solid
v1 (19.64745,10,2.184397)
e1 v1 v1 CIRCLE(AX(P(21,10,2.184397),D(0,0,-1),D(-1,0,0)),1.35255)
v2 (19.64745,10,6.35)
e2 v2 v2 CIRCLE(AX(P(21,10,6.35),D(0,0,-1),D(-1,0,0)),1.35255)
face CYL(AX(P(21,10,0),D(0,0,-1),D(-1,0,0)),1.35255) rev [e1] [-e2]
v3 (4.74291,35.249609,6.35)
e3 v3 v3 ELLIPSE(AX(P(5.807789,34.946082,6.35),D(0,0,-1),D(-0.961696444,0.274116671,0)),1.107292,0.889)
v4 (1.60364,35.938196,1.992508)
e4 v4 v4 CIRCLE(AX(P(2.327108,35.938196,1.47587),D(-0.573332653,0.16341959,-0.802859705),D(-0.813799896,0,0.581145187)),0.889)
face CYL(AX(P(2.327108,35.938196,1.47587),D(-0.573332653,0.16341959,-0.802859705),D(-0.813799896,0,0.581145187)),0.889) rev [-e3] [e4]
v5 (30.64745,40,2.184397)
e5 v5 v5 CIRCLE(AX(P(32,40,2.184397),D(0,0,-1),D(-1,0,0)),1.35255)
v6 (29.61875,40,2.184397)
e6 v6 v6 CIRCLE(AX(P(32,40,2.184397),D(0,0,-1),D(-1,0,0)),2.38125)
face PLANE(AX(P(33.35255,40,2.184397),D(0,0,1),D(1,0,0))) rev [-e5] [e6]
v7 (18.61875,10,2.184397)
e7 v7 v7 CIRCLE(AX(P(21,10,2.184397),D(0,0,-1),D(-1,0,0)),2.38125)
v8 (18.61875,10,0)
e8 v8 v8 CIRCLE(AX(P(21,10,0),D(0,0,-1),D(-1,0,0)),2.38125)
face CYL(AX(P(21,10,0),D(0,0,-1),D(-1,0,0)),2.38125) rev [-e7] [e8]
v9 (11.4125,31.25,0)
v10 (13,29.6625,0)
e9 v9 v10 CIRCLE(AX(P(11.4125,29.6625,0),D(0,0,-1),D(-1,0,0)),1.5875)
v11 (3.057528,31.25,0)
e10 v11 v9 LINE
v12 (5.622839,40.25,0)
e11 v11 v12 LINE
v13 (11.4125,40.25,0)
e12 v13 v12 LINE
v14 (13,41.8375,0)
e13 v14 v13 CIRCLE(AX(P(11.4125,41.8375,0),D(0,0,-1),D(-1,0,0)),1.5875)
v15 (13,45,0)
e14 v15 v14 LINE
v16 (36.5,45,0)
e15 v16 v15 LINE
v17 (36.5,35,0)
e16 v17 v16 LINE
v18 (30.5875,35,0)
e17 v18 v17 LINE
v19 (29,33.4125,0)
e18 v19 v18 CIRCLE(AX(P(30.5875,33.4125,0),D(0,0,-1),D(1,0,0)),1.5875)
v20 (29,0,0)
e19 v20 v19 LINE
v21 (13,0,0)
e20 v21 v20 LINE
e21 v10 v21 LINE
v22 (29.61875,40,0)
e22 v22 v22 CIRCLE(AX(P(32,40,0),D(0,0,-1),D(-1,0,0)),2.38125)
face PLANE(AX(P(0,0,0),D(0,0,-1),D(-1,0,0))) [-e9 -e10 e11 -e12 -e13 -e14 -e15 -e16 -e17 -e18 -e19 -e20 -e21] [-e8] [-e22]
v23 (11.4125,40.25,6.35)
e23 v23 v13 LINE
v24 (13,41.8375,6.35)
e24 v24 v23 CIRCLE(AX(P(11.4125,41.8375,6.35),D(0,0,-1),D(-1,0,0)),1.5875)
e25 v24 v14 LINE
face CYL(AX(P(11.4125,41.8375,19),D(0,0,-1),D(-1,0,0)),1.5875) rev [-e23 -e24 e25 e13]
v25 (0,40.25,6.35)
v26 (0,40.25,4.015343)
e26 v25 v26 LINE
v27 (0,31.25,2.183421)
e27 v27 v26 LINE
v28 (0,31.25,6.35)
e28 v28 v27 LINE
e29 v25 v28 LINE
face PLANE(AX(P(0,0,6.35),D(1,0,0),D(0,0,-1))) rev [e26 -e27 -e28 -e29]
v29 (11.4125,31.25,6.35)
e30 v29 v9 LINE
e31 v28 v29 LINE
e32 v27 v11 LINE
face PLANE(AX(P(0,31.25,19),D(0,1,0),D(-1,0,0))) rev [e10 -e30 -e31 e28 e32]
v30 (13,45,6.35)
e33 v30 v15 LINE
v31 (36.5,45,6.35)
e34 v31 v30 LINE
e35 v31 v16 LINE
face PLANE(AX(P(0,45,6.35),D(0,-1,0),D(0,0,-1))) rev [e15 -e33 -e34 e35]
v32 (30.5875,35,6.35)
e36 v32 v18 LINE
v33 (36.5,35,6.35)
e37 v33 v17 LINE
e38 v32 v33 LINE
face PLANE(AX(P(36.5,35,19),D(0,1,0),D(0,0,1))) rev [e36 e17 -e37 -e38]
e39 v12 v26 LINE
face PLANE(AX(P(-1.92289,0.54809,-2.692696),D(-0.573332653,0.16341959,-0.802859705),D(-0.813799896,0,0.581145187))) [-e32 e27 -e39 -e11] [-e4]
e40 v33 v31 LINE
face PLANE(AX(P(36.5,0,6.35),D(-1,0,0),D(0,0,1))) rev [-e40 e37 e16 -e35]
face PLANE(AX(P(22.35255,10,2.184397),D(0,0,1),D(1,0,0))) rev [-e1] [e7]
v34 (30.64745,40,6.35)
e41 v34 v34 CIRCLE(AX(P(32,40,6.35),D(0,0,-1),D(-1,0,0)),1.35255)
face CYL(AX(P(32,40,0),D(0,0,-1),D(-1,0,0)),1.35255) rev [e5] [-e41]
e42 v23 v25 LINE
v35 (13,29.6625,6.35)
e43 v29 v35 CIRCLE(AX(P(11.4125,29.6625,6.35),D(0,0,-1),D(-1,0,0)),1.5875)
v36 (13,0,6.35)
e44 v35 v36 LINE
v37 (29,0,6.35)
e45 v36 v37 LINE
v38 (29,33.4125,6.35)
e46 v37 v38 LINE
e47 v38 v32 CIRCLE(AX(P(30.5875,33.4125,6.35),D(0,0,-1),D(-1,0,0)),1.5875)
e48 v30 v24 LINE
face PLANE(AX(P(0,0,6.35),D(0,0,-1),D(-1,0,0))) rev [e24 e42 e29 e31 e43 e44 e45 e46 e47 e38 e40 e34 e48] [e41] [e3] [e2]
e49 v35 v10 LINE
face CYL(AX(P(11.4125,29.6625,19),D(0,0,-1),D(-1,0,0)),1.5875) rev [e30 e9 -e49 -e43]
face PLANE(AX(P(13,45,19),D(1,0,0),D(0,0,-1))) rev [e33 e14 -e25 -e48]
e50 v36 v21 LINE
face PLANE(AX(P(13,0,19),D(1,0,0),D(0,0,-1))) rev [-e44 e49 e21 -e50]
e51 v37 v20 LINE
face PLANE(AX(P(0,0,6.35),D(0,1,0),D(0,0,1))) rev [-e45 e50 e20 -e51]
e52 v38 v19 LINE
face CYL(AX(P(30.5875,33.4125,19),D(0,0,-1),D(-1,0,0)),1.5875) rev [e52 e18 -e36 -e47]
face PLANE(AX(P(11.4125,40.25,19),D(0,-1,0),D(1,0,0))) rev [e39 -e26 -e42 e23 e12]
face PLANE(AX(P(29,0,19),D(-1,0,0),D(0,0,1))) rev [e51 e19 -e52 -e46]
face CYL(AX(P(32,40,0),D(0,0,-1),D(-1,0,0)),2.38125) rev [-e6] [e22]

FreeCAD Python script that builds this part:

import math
import FreeCAD as App
import Part
import Sketcher
Q = App.Units.Quantity


def add_polygon(sketch, points):
    """Adds a closed chain of lines whose ends are joined by coincident constraints."""
    first, n = sketch.GeometryCount, len(points)
    for a, b in zip(points, points[1:] + points[:1]):
        sketch.addGeometry(Part.LineSegment(App.Vector(*a, 0), App.Vector(*b, 0)), False)
    for i in range(n):
        sketch.addConstraint(Sketcher.Constraint("Coincident", first + i, 2, first + (i + 1) % n, 1))

doc = App.newDocument("Part")
body = doc.addObject("PartDesign::Body", "Body")

sketch1 = doc.addObject("Sketcher::SketchObject", "Sketch")
body.addObject(sketch1)
sketch1.AttachmentSupport = (doc.XY_Plane, [""])
sketch1.MapMode = "FlatFace"
add_polygon(sketch1, [(0, 45), (0, 0), (36, 0), (36, 45)])
sketch1.addConstraint([
    Sketcher.Constraint("Vertical", 0),
    Sketcher.Constraint("Horizontal", 1),
    Sketcher.Constraint("Vertical", 2),
    Sketcher.Constraint("Horizontal", 3),
    Sketcher.Constraint("Coincident", 0, 2, -1, 1),
    Sketcher.Constraint("DistanceY", 0, 2, 0, 1, Q("45 mm")),
    Sketcher.Constraint("DistanceX", 1, 1, 1, 2, Q("36.5 mm")),
])
pad1 = doc.addObject("PartDesign::Pad", "Pad")
body.addObject(pad1)
pad1.Profile = sketch1
pad1.Length = 6.35

sketch2 = doc.addObject("Sketcher::SketchObject", "Sketch001")
body.addObject(sketch2)
sketch2.Placement = App.Placement(App.Vector(-4.21622, 1.201768, -5.904135), App.Rotation(App.Vector(-0.816779309, -0.191151006, 0.544364633), App.Vector(-0.064507595, 0.967861214, 0.243070853), App.Vector(-0.573332653, 0.16341959, -0.802859705), "ZXY"))
add_polygon(sketch2, [(-34, 69), (-34, 19), (16, 19), (16, 69)])
sketch2.addConstraint([
    Sketcher.Constraint("Vertical", 0),
    Sketcher.Constraint("Horizontal", 1),
    Sketcher.Constraint("Vertical", 2),
    Sketcher.Constraint("Horizontal", 3),
    Sketcher.Constraint("Equal", 3, 0),
    Sketcher.Constraint("DistanceX", 1, 1, 1, 2, Q("50 mm")),
    Sketcher.Constraint("DistanceX", 0, 2, -1, 1, Q("33.601795 mm")),
    Sketcher.Constraint("DistanceY", -1, 1, 0, 2, Q("18.553755 mm")),
])
pocket1 = doc.addObject("PartDesign::Pocket", "Pocket")
body.addObject(pocket1)
pocket1.Profile = sketch2
pocket1.Length = 4

sketch3 = doc.addObject("Sketcher::SketchObject", "Sketch002")
body.addObject(sketch3)
sketch3.AttachmentSupport = (doc.XY_Plane, [""])
sketch3.MapMode = "FlatFace"
sketch3.addGeometry([
    Part.LineSegment(App.Vector(13, 0, 0), App.Vector(0, 0, 0)),
    Part.LineSegment(App.Vector(0, 0, 0), App.Vector(0, 31.2, 0)),
    Part.LineSegment(App.Vector(0, 31.2, 0), App.Vector(11.4, 31.2, 0)),
    Part.ArcOfCircle(Part.Circle(App.Vector(11.4, 29.7, 0), App.Vector(0, 0, 1), 1.6), math.radians(0), math.radians(90)),
    Part.LineSegment(App.Vector(13, 29.7, 0), App.Vector(13, 0, 0)),
    Part.LineSegment(App.Vector(36.5, 0, 0), App.Vector(29, 0, 0)),
    Part.LineSegment(App.Vector(29, 0, 0), App.Vector(29, 33.4, 0)),
    Part.ArcOfCircle(Part.Circle(App.Vector(30.6, 33.4, 0), App.Vector(0, 0, 1), 1.6), math.radians(90), math.radians(180)),
    Part.LineSegment(App.Vector(30.6, 35, 0), App.Vector(36.5, 35, 0)),
    Part.LineSegment(App.Vector(36.5, 35, 0), App.Vector(36.5, 0, 0)),
    Part.LineSegment(App.Vector(13, 45, 0), App.Vector(13, 41.8, 0)),
    Part.ArcOfCircle(Part.Circle(App.Vector(11.4, 41.8, 0), App.Vector(0, 0, 1), 1.6), math.radians(-90), math.radians(0)),
    Part.LineSegment(App.Vector(11.4, 40.2, 0), App.Vector(0, 40.2, 0)),
    Part.LineSegment(App.Vector(0, 40.2, 0), App.Vector(0, 45, 0)),
    Part.LineSegment(App.Vector(0, 45, 0), App.Vector(13, 45, 0)),
], False)
sketch3.addConstraint([
    Sketcher.Constraint("Coincident", 0, 2, 1, 1),
    Sketcher.Constraint("Coincident", 1, 2, 2, 1),
    Sketcher.Constraint("Tangent", 2, 2, 3, 2),
    Sketcher.Constraint("Tangent", 3, 1, 4, 1),
    Sketcher.Constraint("Coincident", 4, 2, 0, 1),
    Sketcher.Constraint("Coincident", 5, 2, 6, 1),
    Sketcher.Constraint("Tangent", 6, 2, 7, 2),
    Sketcher.Constraint("Tangent", 7, 1, 8, 1),
    Sketcher.Constraint("Coincident", 8, 2, 9, 1),
    Sketcher.Constraint("Coincident", 9, 2, 5, 1),
    Sketcher.Constraint("Tangent", 10, 2, 11, 2),
    Sketcher.Constraint("Tangent", 11, 1, 12, 1),
    Sketcher.Constraint("Coincident", 12, 2, 13, 1),
    Sketcher.Constraint("Coincident", 13, 2, 14, 1),
    Sketcher.Constraint("Coincident", 14, 2, 10, 1),
    Sketcher.Constraint("Horizontal", 0),
    Sketcher.Constraint("Vertical", 1),
    Sketcher.Constraint("Horizontal", 2),
    Sketcher.Constraint("Vertical", 4),
    Sketcher.Constraint("Horizontal", 5),
    Sketcher.Constraint("Vertical", 6),
    Sketcher.Constraint("Horizontal", 8),
    Sketcher.Constraint("Vertical", 9),
    Sketcher.Constraint("Vertical", 10),
    Sketcher.Constraint("Horizontal", 12),
    Sketcher.Constraint("Vertical", 13),
    Sketcher.Constraint("Horizontal", 14),
    Sketcher.Constraint("Coincident", 0, 2, -1, 1),
    Sketcher.Constraint("Equal", 3, 7),
    Sketcher.Constraint("Equal", 7, 11),
    Sketcher.Constraint("PointOnObject", 5, 2, -1),
    Sketcher.Constraint("PointOnObject", 12, 2, -2),
    Sketcher.Constraint("Vertical", 3, 3, 11, 3),
    Sketcher.Constraint("DistanceX", 0, 2, 0, 1, Q("13 mm")),
    Sketcher.Constraint("DistanceY", 9, 2, 9, 1, Q("35 mm")),
    Sketcher.Constraint("DistanceX", 5, 2, 5, 1, Q("7.5 mm")),
    Sketcher.Constraint("DistanceX", -1, 1, 5, 2, Q("29 mm")),
    Sketcher.Constraint("DistanceY", -1, 1, 13, 2, Q("45 mm")),
    Sketcher.Constraint("DistanceY", 2, 2, 11, 1, Q("9 mm")),
    Sketcher.Constraint("DistanceY", 1, 1, 1, 2, Q("31.25 mm")),
    Sketcher.Constraint("Radius", 3, Q("1.5875 mm")),
])
pocket2 = doc.addObject("PartDesign::Pocket", "Pocket001")
body.addObject(pocket2)
pocket2.Profile = sketch3
pocket2.Length = 19
pocket2.Reversed = True

sketch4 = doc.addObject("Sketcher::SketchObject", "Sketch003")
body.addObject(sketch4)
sketch4.Placement = App.Placement(App.Vector(-1.92289, 0.54809, -2.692696), App.Rotation(App.Vector(-0.816779309, -0.191151006, 0.544364633), App.Vector(-0.064507595, 0.967861214, 0.243070853), App.Vector(-0.573332653, 0.16341959, -0.802859705), "ZXY"))
sketch4.addGeometry(Part.Circle(App.Vector(-8, 35, 0), App.Vector(0, 0, 1), 0.9), False)
sketch4.addConstraint([
    Sketcher.Constraint("Diameter", 0, Q("1.778 mm")),
    Sketcher.Constraint("DistanceY", -1, 1, 0, 3, Q("34.991811 mm")),
    Sketcher.Constraint("DistanceX", 0, 3, -1, 1, Q("7.966945 mm")),
])
doc.recompute()
hole = doc.addObject("PartDesign::Hole", "Hole")
body.addObject(hole)
hole.Profile = sketch4
hole.ThreadType = "None"
hole.Diameter = 1.778
hole.DepthType = "ThroughAll"

sketch5 = doc.addObject("Sketcher::SketchObject", "Sketch004")
body.addObject(sketch5)
sketch5.AttachmentSupport = (doc.XY_Plane, [""])
sketch5.MapMode = "FlatFace"
sketch5.addGeometry([
    Part.Circle(App.Vector(21, 10, 0), App.Vector(0, 0, 1), 1.4),
    Part.Circle(App.Vector(32, 40, 0), App.Vector(0, 0, 1), 1.4),
], False)
sketch5.addConstraint([
    Sketcher.Constraint("Equal", 0, 1),
    Sketcher.Constraint("DistanceX", -1, 1, 0, 3, Q("21 mm")),
    Sketcher.Constraint("DistanceY", -1, 1, 0, 3, Q("10 mm")),
    Sketcher.Constraint("DistanceX", -1, 1, 1, 3, Q("32 mm")),
    Sketcher.Constraint("DistanceY", -1, 1, 1, 3, Q("40 mm")),
    Sketcher.Constraint("Diameter", 0, Q("2.7051 mm")),
])
doc.recompute()
hole2 = doc.addObject("PartDesign::Hole", "Hole001")
body.addObject(hole2)
hole2.Profile = sketch5
hole2.ThreadType = "None"
hole2.Diameter = 2.7051
hole2.DepthType = "ThroughAll"
hole2.HoleCutType = "Counterbore"
hole2.HoleCutDiameter = 4.7625
hole2.HoleCutDepth = 2.184397
hole2.Reversed = True

doc.recompute()
